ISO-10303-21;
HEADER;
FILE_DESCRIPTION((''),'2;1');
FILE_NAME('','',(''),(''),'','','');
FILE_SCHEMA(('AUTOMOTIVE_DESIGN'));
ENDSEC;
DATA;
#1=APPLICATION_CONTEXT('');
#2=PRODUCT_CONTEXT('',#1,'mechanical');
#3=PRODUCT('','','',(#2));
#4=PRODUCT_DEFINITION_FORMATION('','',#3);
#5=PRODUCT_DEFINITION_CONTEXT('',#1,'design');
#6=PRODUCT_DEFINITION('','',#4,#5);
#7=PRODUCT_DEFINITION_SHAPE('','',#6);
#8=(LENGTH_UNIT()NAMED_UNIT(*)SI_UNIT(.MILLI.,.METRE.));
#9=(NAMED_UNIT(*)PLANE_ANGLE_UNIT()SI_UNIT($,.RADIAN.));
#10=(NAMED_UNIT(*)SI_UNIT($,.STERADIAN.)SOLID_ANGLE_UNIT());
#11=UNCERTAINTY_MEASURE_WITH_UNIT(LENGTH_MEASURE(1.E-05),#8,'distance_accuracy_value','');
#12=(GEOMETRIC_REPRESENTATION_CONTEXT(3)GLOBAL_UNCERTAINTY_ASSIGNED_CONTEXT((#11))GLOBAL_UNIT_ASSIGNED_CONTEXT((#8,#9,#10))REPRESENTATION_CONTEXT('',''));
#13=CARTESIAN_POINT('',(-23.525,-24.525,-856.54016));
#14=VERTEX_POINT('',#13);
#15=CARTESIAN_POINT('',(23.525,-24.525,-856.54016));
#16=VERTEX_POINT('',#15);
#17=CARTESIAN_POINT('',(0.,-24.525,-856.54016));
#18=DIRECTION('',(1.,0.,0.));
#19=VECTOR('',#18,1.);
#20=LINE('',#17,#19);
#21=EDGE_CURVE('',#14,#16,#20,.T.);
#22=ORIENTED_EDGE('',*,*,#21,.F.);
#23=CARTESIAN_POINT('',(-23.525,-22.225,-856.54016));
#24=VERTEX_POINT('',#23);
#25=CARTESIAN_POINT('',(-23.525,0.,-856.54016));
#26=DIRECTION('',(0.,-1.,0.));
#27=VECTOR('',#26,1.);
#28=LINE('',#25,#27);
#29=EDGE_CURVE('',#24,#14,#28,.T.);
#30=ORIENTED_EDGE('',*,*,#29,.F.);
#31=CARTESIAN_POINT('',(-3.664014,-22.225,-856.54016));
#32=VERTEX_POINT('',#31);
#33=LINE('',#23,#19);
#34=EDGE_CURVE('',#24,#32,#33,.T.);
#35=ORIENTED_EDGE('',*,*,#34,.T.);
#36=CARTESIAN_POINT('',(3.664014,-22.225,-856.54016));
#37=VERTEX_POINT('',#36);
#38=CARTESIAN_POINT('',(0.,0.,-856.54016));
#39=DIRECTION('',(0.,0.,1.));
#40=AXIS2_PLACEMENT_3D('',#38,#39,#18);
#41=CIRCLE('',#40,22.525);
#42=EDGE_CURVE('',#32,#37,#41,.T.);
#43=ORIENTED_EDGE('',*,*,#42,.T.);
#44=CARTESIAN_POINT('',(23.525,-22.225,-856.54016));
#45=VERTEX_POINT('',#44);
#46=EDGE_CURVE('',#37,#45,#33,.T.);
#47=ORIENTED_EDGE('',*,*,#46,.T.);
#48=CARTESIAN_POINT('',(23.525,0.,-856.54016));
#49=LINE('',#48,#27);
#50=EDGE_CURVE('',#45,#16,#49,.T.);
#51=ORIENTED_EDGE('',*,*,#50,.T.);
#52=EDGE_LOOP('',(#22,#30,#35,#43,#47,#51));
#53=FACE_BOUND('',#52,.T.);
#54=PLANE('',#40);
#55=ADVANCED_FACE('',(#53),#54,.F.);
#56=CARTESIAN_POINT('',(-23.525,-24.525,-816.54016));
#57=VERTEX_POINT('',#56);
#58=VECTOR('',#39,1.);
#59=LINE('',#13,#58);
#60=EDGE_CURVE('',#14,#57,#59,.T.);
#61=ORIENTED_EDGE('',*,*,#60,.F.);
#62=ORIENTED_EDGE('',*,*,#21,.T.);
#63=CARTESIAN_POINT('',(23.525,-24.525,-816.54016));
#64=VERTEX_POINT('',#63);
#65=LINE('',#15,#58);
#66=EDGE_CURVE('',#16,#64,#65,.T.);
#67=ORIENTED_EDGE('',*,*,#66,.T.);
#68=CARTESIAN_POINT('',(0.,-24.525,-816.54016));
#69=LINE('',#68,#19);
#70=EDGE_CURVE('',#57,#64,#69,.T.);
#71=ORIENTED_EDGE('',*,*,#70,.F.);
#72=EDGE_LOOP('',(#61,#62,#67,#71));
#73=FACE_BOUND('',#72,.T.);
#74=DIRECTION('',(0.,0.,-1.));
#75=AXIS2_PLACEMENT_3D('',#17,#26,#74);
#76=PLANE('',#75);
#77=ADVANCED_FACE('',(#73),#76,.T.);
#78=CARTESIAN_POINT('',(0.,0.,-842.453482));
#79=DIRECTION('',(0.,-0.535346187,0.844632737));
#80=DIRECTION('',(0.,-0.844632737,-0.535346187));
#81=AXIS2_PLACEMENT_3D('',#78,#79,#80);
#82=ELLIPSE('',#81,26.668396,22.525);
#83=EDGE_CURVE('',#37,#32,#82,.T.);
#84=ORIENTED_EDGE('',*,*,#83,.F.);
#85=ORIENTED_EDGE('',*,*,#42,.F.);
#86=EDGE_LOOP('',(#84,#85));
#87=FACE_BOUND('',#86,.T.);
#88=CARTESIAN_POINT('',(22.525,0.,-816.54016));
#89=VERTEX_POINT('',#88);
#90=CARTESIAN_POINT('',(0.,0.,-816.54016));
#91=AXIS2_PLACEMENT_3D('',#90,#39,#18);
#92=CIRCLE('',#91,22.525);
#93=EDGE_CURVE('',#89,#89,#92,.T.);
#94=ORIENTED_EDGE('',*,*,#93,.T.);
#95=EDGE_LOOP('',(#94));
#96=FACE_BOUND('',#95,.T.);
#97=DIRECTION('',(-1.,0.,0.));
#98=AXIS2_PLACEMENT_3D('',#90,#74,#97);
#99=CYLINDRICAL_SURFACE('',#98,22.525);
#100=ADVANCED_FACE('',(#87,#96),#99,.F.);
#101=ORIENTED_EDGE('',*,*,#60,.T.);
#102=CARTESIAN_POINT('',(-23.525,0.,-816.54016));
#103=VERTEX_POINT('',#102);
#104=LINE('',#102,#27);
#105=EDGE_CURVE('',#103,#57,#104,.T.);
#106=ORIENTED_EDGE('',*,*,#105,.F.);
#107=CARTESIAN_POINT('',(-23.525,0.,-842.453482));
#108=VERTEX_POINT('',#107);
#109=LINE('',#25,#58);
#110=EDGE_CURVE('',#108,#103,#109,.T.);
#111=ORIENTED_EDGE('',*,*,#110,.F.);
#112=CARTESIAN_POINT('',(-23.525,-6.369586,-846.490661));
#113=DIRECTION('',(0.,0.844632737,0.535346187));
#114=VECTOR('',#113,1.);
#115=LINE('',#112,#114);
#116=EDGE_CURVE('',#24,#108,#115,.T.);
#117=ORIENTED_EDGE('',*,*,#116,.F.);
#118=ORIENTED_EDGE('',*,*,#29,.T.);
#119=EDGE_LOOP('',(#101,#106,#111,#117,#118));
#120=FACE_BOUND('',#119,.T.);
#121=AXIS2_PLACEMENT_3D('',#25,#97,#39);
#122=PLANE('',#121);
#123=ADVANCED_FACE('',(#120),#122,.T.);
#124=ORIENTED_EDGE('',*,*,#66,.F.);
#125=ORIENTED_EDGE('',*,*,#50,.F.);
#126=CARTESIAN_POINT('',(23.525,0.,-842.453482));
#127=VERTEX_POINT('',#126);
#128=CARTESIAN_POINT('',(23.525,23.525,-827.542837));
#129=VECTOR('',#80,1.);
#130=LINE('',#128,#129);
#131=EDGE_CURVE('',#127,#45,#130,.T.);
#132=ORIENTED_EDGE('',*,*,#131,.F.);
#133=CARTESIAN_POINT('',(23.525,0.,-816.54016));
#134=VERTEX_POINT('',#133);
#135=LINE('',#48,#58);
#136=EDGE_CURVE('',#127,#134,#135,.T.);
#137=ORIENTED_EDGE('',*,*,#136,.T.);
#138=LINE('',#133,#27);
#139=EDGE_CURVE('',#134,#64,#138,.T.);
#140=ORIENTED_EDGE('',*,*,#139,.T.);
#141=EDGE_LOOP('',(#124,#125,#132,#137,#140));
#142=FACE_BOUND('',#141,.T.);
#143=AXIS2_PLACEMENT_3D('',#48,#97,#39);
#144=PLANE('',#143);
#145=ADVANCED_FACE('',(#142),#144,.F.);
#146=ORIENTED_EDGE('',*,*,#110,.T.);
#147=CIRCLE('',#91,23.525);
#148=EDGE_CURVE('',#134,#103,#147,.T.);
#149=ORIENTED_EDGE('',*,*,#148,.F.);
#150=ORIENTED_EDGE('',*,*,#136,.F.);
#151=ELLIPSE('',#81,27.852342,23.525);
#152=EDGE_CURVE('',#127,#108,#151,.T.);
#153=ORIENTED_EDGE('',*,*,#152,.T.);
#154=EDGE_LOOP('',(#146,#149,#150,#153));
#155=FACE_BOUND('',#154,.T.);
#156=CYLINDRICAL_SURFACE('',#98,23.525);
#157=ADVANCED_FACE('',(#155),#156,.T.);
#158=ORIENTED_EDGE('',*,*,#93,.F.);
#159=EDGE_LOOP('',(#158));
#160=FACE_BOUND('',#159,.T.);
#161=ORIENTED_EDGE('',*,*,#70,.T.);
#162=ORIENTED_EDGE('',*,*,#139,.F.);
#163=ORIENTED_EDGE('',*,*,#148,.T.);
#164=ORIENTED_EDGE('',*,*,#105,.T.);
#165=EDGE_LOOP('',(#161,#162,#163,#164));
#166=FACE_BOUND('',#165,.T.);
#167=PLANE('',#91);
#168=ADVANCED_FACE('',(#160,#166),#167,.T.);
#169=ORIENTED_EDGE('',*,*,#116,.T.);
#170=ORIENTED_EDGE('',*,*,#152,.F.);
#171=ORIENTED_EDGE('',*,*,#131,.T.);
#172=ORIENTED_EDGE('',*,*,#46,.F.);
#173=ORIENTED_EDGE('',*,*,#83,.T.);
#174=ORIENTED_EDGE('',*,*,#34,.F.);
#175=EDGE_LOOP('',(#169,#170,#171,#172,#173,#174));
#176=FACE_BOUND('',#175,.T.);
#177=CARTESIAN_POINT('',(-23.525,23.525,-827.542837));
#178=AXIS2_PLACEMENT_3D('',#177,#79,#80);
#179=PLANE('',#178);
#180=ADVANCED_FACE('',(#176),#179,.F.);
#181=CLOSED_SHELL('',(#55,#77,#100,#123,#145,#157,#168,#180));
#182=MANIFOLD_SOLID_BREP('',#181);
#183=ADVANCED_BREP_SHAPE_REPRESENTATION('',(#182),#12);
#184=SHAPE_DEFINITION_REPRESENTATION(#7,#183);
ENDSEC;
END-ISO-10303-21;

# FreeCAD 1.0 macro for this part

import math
import FreeCAD as App
import Part
import Sketcher


def add_polygon(sketch, points):
    """Adds a closed chain of lines whose ends are joined by coincident constraints."""
    first, n = sketch.GeometryCount, len(points)
    for a, b in zip(points, points[1:] + points[:1]):
        sketch.addGeometry(Part.LineSegment(App.Vector(*a, 0), App.Vector(*b, 0)), False)
    for i in range(n):
        sketch.addConstraint(Sketcher.Constraint("Coincident", first + i, 2, first + (i + 1) % n, 1))

doc = App.newDocument("Part")
params = doc.addObject("Spreadsheet::Sheet", "Params")
for row, (alias, value) in enumerate([
    ("sketch1_diameter", "47.05 mm"),
    ("sketch1_diameter2", "45.05 mm"),
    ("pad1_length", "40 mm"),
    ("pad2_length", "40 mm"),
    ("sketch3_width", "45.75 mm"),
], start=1):
    params.set(f"A{row}", alias)
    params.set(f"B{row}", "=" + value)
    params.setAlias(f"B{row}", alias)

body = doc.addObject("PartDesign::Body", "Body")

sketch1 = doc.addObject("Sketcher::SketchObject", "Sketch")
body.addObject(sketch1)
sketch1.AttachmentSupport = (doc.XY_Plane, [""])
sketch1.MapMode = "FlatFace"
sketch1.AttachmentOffset = App.Placement(App.Vector(0, 0, -856.54016), App.Rotation())
sketch1.addGeometry([
    Part.Circle(App.Vector(0, 0, 0), App.Vector(0, 0, 1), 24),
    Part.Circle(App.Vector(0, 0, 0), App.Vector(0, 0, 1), 23),
], False)
sketch1.addConstraint([
    Sketcher.Constraint("Coincident", 0, 3, -1, 1),
    Sketcher.Constraint("Coincident", 1, 3, -1, 1),
    Sketcher.Constraint("Diameter", 0, 47.05),
    Sketcher.Constraint("Diameter", 1, 45.05),
])
sketch1.setExpression("Constraints[2]", "Params.sketch1_diameter")
sketch1.setExpression("Constraints[3]", "Params.sketch1_diameter2")
pad1 = doc.addObject("PartDesign::Pad", "Pad")
body.addObject(pad1)
pad1.Profile = sketch1
pad1.setExpression("Length", "Params.pad1_length")

sketch2 = doc.addObject("Sketcher::SketchObject", "Sketch001")
body.addObject(sketch2)
sketch2.AttachmentSupport = (doc.XY_Plane, [""])
sketch2.MapMode = "FlatFace"
sketch2.AttachmentOffset = App.Placement(App.Vector(0, 0, -816.54016), App.Rotation())
sketch2.addGeometry([
    Part.LineSegment(App.Vector(24, -25, 0), App.Vector(24, 0, 0)),
    Part.ArcOfCircle(Part.Circle(App.Vector(0, 0, 0), App.Vector(0, 0, 1), 24), math.radians(-90), math.radians(0)),
    Part.ArcOfCircle(Part.Circle(App.Vector(0, 0, 0), App.Vector(0, 0, 1), 24), math.radians(-180), math.radians(-90)),
    Part.LineSegment(App.Vector(-24, 0, 0), App.Vector(-24, -25, 0)),
    Part.LineSegment(App.Vector(-24, -25, 0), App.Vector(24, -25, 0)),
], False)
sketch2.addConstraint([
    Sketcher.Constraint("Tangent", 0, 2, 1, 2),
    Sketcher.Constraint("Tangent", 1, 1, 2, 2),
    Sketcher.Constraint("Tangent", 2, 1, 3, 1),
    Sketcher.Constraint("Coincident", 3, 2, 4, 1),
    Sketcher.Constraint("Coincident", 4, 2, 0, 1),
    Sketcher.Constraint("Vertical", 0),
    Sketcher.Constraint("Vertical", 3),
    Sketcher.Constraint("Horizontal", 4),
    Sketcher.Constraint("Coincident", 1, 3, -1, 1),
    Sketcher.Constraint("Equal", 1, 2),
    Sketcher.Constraint("PointOnObject", 1, 1, -2),
    Sketcher.Constraint("Radius", 1, 23.525),
    Sketcher.Constraint("DistanceY", 3, 2, 1, 1, 1.0),
])
pad2 = doc.addObject("PartDesign::Pad", "Pad001")
body.addObject(pad2)
pad2.Profile = sketch2
pad2.setExpression("Length", "Params.pad2_length")
pad2.Reversed = True

sketch3 = doc.addObject("Sketcher::SketchObject", "Sketch002")
body.addObject(sketch3)
sketch3.AttachmentSupport = (doc.YZ_Plane, [""])
sketch3.MapMode = "FlatFace"
add_polygon(sketch3, [(24, -828), (-22, -857), (24, -857)])
sketch3.addConstraint([
    Sketcher.Constraint("Horizontal", 1),
    Sketcher.Constraint("Vertical", 2),
    Sketcher.Constraint("DistanceX", 1, 1, 1, 2, 45.75),
    Sketcher.Constraint("DistanceX", 0, 2, -1, 1, 22.225),
    Sketcher.Constraint("DistanceY", 2, 1, 2, 2, 28.997323),
    Sketcher.Constraint("DistanceY", 0, 2, -1, 1, 856.54016),
])
sketch3.setExpression("Constraints[5]", "Params.sketch3_width")
pocket1 = doc.addObject("PartDesign::Pocket", "Pocket")
body.addObject(pocket1)
pocket1.Profile = sketch3
pocket1.Type = "ThroughAll"
pocket1.Midplane = True

doc.recompute()
